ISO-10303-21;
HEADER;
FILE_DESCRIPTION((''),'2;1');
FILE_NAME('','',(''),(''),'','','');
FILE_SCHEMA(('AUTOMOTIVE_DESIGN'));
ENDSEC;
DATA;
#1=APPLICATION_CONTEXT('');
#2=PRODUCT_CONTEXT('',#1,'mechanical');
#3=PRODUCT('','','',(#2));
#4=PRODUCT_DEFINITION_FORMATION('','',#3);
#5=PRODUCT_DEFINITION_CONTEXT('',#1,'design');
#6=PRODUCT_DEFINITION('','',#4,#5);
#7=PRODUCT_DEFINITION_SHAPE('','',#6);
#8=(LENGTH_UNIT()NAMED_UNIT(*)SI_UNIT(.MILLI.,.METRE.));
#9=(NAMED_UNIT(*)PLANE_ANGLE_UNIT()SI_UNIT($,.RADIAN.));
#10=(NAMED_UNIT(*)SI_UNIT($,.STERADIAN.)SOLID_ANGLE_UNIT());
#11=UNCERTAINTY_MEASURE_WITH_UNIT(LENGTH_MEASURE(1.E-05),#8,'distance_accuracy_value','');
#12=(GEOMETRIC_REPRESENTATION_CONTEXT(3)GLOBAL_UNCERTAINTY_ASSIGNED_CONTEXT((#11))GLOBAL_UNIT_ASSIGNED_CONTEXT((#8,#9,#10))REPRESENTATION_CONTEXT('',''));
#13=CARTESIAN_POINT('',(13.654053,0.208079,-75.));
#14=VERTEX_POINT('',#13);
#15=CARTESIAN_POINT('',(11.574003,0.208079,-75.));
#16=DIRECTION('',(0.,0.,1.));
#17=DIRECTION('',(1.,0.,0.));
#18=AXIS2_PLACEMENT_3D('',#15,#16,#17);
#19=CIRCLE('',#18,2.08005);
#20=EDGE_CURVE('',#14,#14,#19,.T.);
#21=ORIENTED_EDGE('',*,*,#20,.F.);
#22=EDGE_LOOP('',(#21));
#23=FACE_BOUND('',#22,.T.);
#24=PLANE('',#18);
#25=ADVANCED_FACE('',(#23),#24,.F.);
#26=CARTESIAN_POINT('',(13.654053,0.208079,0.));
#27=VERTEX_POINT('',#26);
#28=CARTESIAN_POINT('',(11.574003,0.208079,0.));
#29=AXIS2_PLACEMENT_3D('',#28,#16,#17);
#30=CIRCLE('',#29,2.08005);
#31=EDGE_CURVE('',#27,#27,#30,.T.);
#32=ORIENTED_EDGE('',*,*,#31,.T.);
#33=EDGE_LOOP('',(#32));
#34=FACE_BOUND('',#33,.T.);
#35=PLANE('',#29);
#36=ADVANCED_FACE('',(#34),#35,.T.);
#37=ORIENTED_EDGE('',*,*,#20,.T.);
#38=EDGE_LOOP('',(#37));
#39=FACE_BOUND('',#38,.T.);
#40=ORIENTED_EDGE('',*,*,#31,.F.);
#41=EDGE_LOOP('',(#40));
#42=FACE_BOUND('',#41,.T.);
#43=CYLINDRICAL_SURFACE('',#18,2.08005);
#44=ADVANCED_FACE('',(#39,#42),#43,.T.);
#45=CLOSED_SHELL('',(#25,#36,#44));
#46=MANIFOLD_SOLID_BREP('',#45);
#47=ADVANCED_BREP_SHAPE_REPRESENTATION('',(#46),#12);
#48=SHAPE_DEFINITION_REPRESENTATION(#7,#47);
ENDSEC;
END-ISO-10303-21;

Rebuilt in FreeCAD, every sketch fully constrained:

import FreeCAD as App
import Part
import Sketcher
from FreeCAD import Vector

doc = App.newDocument("Part")
body = doc.addObject("PartDesign::Body", "Body")

# Sketch on XY plane
sketch1 = body.newObject("Sketcher::SketchObject", "Sketch")
sketch1.AttachmentSupport = (doc.getObject("XY_Plane"), [""])
sketch1.MapMode = "FlatFace"
sketch1.addGeometry(Part.Circle(Vector(11.6, 0.2, 0), Vector(0, 0, 1), 2.1), False)
sketch1.addConstraint([
    Sketcher.Constraint("Diameter", 0, 4.1601),
    Sketcher.Constraint("DistanceY", -1, 1, 0, 3, 0.208079),
    Sketcher.Constraint("DistanceX", -1, 1, 0, 3, 11.574003),
])
pad1 = body.newObject("PartDesign::Pad", "Pad")
pad1.Profile = sketch1
pad1.Length = 75
pad1.Reversed = True

doc.recompute()
